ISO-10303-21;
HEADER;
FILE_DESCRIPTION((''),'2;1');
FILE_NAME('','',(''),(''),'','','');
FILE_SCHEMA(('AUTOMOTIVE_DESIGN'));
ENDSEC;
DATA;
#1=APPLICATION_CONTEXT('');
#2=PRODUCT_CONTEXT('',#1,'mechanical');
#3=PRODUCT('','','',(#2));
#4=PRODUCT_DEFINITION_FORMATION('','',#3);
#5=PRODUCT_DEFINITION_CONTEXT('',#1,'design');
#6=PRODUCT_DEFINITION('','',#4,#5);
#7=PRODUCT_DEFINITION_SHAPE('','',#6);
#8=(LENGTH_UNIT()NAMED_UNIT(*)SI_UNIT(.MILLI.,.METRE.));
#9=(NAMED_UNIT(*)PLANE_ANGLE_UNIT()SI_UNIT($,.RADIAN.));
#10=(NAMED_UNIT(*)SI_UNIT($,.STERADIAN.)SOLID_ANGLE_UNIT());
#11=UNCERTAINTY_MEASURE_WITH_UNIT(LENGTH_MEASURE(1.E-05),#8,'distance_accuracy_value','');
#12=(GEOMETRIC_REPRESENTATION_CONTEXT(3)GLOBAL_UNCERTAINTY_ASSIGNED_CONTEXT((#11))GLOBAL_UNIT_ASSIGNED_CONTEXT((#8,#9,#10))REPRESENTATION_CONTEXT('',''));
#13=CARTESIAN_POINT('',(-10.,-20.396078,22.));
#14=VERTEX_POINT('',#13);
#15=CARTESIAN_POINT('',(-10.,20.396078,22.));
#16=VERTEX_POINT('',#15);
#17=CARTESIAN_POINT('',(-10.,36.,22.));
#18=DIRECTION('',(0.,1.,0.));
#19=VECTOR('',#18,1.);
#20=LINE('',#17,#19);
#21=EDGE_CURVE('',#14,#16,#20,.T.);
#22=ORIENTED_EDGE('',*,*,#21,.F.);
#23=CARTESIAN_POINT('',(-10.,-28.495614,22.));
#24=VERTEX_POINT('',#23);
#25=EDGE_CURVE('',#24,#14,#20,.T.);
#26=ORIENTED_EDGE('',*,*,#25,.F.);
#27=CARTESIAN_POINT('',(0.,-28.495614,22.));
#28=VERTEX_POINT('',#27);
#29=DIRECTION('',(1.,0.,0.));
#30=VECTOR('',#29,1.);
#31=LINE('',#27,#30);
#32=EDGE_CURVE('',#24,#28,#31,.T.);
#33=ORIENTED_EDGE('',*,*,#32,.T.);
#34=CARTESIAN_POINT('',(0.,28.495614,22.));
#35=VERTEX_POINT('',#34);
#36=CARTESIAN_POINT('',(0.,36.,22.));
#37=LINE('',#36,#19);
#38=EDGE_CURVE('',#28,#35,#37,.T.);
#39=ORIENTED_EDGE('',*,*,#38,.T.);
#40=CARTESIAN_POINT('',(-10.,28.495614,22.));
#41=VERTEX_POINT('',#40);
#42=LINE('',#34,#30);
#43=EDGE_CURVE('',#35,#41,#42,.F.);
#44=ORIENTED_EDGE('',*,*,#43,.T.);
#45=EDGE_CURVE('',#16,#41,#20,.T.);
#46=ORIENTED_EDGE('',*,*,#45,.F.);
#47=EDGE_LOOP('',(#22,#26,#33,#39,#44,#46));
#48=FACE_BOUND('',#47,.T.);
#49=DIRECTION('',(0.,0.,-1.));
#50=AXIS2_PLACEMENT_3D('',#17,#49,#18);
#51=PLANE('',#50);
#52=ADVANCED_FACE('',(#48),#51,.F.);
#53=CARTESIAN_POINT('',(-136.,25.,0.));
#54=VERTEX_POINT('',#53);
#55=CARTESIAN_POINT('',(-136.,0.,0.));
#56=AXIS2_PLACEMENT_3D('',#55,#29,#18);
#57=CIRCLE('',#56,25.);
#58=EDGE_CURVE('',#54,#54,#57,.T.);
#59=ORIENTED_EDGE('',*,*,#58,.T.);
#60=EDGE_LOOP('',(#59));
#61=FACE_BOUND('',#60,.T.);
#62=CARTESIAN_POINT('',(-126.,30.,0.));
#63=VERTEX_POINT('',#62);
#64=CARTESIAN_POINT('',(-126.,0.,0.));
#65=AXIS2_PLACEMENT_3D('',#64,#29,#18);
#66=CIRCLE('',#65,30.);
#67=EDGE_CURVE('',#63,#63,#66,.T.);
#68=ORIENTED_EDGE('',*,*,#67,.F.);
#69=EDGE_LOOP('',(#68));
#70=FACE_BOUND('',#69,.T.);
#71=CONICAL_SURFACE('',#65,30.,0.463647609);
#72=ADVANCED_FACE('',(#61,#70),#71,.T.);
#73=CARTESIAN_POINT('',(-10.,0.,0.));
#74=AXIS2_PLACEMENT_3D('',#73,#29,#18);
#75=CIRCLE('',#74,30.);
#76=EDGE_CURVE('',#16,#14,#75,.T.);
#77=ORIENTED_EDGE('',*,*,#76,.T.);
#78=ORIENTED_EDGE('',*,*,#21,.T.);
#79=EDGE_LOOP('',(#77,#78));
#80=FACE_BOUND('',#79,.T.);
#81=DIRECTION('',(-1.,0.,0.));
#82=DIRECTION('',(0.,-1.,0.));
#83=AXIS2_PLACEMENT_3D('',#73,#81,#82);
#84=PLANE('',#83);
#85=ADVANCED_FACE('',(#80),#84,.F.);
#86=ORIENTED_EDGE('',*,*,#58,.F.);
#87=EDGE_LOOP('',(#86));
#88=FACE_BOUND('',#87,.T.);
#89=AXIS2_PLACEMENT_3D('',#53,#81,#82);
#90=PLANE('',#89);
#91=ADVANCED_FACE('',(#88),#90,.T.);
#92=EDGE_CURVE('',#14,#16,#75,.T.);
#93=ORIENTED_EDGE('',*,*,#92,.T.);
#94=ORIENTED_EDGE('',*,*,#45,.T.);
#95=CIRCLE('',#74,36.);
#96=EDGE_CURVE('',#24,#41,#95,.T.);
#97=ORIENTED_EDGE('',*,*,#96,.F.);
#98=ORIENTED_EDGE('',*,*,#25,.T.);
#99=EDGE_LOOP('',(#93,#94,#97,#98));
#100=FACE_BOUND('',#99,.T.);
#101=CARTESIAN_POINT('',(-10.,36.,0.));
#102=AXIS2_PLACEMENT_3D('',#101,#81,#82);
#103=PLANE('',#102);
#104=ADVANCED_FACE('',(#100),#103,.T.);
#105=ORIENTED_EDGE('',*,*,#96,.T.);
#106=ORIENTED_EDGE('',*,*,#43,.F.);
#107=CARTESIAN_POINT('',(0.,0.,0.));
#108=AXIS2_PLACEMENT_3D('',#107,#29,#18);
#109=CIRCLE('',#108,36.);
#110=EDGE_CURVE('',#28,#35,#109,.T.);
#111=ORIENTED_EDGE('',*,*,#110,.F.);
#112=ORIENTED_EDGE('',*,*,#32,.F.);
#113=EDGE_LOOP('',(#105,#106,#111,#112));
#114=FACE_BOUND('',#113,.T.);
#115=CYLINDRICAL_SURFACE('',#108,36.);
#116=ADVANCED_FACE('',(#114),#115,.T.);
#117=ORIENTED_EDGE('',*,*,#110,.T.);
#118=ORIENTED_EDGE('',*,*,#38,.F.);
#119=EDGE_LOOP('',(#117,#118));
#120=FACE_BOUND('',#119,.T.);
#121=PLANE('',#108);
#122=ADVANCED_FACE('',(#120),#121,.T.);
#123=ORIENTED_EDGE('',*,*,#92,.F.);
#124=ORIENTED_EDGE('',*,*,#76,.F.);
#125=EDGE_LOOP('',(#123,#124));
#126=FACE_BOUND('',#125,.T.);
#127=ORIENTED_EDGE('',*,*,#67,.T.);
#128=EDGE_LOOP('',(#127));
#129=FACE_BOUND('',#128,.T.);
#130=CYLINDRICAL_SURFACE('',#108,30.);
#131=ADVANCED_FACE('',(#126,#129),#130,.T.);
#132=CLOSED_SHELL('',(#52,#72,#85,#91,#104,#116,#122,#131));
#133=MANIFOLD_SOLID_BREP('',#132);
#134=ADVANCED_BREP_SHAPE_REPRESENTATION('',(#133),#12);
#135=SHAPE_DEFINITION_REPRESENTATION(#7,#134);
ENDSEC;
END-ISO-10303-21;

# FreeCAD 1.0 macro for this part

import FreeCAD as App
import Part
import Sketcher
from FreeCAD import Vector


def add_polygon(sketch, points):
    """Adds a closed chain of lines whose ends are joined by coincident constraints."""
    first, n = sketch.GeometryCount, len(points)
    for a, b in zip(points, points[1:] + points[:1]):
        sketch.addGeometry(Part.LineSegment(App.Vector(*a, 0), App.Vector(*b, 0)), False)
    for i in range(n):
        sketch.addConstraint(Sketcher.Constraint("Coincident", first + i, 2, first + (i + 1) % n, 1))

doc = App.newDocument("Part")
params = doc.addObject("Spreadsheet::Sheet", "Params")
for row, (alias, value) in enumerate([
    ("sketch1_width", "136 mm"),
    ("sketch1_width2", "10 mm"),
    ("sketch1_width3", "116 mm"),
    ("sketch1_height", "36 mm"),
    ("sketch1_height2", "6 mm"),
    ("revolution_angle", "360 deg"),
    ("sketch2_width", "72 mm"),
    ("sketch2_height", "14 mm"),
    ("pocket1_length", "10 mm"),
], start=1):
    params.set(f"A{row}", alias)
    params.set(f"B{row}", "=" + value)
    params.setAlias(f"B{row}", alias)

body = doc.addObject("PartDesign::Body", "Body")

sketch1 = body.newObject("Sketcher::SketchObject", "Sketch")
sketch1.AttachmentSupport = (doc.getObject("XY_Plane"), [""])
sketch1.MapMode = "FlatFace"
add_polygon(sketch1, [(-136, 0), (0, 0), (0, 36), (-10, 36), (-10, 30), (-126, 30), (-136, 25)])
sketch1.addConstraint(Sketcher.Constraint("Horizontal", 0))
sketch1.addConstraint(Sketcher.Constraint("Vertical", 1))
sketch1.addConstraint(Sketcher.Constraint("Horizontal", 2))
sketch1.addConstraint(Sketcher.Constraint("Vertical", 3))
sketch1.addConstraint(Sketcher.Constraint("Horizontal", 4))
sketch1.addConstraint(Sketcher.Constraint("Vertical", 6))
sketch1.addConstraint(Sketcher.Constraint("Coincident", 0, 2, -1, 1))
sketch1.addConstraint(Sketcher.Constraint("DistanceX", 0, 1, 0, 2, 136.0))
sketch1.addConstraint(Sketcher.Constraint("DistanceX", 2, 2, 2, 1, 10.0))
sketch1.addConstraint(Sketcher.Constraint("DistanceX", 4, 2, 4, 1, 116.0))
sketch1.addConstraint(Sketcher.Constraint("DistanceY", 1, 1, 1, 2, 36.0))
sketch1.addConstraint(Sketcher.Constraint("DistanceY", 3, 2, 3, 1, 6.0))
sketch1.addConstraint(Sketcher.Constraint("DistanceY", 6, 2, 6, 1, 25.0))
sketch1.setExpression("Constraints[14]", "Params.sketch1_width")
sketch1.setExpression("Constraints[15]", "Params.sketch1_width2")
sketch1.setExpression("Constraints[16]", "Params.sketch1_width3")
sketch1.setExpression("Constraints[17]", "Params.sketch1_height")
sketch1.setExpression("Constraints[18]", "Params.sketch1_height2")
revolution = body.newObject("PartDesign::Revolution", "Revolution")
revolution.Profile = sketch1
revolution.ReferenceAxis = (sketch1, ["H_Axis"])
revolution.setExpression("Angle", "Params.revolution_angle")

sketch2 = body.newObject("Sketcher::SketchObject", "Sketch001")
sketch2.AttachmentSupport = (doc.getObject("YZ_Plane"), [""])
sketch2.MapMode = "FlatFace"
add_polygon(sketch2, [(36, 36), (-36, 36), (-36, 22), (36, 22)])
sketch2.addConstraint(Sketcher.Constraint("Horizontal", 0))
sketch2.addConstraint(Sketcher.Constraint("Vertical", 1))
sketch2.addConstraint(Sketcher.Constraint("Horizontal", 2))
sketch2.addConstraint(Sketcher.Constraint("Vertical", 3))
sketch2.addConstraint(Sketcher.Constraint("DistanceX", 0, 2, 0, 1, 72.0))
sketch2.addConstraint(Sketcher.Constraint("DistanceY", 1, 2, 1, 1, 14.0))
sketch2.addConstraint(Sketcher.Constraint("DistanceX", 0, 2, -1, 1, 36.0))
sketch2.addConstraint(Sketcher.Constraint("DistanceY", -1, 1, 0, 2, 36.0))
sketch2.setExpression("Constraints[8]", "Params.sketch2_width")
sketch2.setExpression("Constraints[9]", "Params.sketch2_height")
pocket1 = body.newObject("PartDesign::Pocket", "Pocket")
pocket1.Profile = sketch2
pocket1.setExpression("Length", "Params.pocket1_length")

doc.recompute()
